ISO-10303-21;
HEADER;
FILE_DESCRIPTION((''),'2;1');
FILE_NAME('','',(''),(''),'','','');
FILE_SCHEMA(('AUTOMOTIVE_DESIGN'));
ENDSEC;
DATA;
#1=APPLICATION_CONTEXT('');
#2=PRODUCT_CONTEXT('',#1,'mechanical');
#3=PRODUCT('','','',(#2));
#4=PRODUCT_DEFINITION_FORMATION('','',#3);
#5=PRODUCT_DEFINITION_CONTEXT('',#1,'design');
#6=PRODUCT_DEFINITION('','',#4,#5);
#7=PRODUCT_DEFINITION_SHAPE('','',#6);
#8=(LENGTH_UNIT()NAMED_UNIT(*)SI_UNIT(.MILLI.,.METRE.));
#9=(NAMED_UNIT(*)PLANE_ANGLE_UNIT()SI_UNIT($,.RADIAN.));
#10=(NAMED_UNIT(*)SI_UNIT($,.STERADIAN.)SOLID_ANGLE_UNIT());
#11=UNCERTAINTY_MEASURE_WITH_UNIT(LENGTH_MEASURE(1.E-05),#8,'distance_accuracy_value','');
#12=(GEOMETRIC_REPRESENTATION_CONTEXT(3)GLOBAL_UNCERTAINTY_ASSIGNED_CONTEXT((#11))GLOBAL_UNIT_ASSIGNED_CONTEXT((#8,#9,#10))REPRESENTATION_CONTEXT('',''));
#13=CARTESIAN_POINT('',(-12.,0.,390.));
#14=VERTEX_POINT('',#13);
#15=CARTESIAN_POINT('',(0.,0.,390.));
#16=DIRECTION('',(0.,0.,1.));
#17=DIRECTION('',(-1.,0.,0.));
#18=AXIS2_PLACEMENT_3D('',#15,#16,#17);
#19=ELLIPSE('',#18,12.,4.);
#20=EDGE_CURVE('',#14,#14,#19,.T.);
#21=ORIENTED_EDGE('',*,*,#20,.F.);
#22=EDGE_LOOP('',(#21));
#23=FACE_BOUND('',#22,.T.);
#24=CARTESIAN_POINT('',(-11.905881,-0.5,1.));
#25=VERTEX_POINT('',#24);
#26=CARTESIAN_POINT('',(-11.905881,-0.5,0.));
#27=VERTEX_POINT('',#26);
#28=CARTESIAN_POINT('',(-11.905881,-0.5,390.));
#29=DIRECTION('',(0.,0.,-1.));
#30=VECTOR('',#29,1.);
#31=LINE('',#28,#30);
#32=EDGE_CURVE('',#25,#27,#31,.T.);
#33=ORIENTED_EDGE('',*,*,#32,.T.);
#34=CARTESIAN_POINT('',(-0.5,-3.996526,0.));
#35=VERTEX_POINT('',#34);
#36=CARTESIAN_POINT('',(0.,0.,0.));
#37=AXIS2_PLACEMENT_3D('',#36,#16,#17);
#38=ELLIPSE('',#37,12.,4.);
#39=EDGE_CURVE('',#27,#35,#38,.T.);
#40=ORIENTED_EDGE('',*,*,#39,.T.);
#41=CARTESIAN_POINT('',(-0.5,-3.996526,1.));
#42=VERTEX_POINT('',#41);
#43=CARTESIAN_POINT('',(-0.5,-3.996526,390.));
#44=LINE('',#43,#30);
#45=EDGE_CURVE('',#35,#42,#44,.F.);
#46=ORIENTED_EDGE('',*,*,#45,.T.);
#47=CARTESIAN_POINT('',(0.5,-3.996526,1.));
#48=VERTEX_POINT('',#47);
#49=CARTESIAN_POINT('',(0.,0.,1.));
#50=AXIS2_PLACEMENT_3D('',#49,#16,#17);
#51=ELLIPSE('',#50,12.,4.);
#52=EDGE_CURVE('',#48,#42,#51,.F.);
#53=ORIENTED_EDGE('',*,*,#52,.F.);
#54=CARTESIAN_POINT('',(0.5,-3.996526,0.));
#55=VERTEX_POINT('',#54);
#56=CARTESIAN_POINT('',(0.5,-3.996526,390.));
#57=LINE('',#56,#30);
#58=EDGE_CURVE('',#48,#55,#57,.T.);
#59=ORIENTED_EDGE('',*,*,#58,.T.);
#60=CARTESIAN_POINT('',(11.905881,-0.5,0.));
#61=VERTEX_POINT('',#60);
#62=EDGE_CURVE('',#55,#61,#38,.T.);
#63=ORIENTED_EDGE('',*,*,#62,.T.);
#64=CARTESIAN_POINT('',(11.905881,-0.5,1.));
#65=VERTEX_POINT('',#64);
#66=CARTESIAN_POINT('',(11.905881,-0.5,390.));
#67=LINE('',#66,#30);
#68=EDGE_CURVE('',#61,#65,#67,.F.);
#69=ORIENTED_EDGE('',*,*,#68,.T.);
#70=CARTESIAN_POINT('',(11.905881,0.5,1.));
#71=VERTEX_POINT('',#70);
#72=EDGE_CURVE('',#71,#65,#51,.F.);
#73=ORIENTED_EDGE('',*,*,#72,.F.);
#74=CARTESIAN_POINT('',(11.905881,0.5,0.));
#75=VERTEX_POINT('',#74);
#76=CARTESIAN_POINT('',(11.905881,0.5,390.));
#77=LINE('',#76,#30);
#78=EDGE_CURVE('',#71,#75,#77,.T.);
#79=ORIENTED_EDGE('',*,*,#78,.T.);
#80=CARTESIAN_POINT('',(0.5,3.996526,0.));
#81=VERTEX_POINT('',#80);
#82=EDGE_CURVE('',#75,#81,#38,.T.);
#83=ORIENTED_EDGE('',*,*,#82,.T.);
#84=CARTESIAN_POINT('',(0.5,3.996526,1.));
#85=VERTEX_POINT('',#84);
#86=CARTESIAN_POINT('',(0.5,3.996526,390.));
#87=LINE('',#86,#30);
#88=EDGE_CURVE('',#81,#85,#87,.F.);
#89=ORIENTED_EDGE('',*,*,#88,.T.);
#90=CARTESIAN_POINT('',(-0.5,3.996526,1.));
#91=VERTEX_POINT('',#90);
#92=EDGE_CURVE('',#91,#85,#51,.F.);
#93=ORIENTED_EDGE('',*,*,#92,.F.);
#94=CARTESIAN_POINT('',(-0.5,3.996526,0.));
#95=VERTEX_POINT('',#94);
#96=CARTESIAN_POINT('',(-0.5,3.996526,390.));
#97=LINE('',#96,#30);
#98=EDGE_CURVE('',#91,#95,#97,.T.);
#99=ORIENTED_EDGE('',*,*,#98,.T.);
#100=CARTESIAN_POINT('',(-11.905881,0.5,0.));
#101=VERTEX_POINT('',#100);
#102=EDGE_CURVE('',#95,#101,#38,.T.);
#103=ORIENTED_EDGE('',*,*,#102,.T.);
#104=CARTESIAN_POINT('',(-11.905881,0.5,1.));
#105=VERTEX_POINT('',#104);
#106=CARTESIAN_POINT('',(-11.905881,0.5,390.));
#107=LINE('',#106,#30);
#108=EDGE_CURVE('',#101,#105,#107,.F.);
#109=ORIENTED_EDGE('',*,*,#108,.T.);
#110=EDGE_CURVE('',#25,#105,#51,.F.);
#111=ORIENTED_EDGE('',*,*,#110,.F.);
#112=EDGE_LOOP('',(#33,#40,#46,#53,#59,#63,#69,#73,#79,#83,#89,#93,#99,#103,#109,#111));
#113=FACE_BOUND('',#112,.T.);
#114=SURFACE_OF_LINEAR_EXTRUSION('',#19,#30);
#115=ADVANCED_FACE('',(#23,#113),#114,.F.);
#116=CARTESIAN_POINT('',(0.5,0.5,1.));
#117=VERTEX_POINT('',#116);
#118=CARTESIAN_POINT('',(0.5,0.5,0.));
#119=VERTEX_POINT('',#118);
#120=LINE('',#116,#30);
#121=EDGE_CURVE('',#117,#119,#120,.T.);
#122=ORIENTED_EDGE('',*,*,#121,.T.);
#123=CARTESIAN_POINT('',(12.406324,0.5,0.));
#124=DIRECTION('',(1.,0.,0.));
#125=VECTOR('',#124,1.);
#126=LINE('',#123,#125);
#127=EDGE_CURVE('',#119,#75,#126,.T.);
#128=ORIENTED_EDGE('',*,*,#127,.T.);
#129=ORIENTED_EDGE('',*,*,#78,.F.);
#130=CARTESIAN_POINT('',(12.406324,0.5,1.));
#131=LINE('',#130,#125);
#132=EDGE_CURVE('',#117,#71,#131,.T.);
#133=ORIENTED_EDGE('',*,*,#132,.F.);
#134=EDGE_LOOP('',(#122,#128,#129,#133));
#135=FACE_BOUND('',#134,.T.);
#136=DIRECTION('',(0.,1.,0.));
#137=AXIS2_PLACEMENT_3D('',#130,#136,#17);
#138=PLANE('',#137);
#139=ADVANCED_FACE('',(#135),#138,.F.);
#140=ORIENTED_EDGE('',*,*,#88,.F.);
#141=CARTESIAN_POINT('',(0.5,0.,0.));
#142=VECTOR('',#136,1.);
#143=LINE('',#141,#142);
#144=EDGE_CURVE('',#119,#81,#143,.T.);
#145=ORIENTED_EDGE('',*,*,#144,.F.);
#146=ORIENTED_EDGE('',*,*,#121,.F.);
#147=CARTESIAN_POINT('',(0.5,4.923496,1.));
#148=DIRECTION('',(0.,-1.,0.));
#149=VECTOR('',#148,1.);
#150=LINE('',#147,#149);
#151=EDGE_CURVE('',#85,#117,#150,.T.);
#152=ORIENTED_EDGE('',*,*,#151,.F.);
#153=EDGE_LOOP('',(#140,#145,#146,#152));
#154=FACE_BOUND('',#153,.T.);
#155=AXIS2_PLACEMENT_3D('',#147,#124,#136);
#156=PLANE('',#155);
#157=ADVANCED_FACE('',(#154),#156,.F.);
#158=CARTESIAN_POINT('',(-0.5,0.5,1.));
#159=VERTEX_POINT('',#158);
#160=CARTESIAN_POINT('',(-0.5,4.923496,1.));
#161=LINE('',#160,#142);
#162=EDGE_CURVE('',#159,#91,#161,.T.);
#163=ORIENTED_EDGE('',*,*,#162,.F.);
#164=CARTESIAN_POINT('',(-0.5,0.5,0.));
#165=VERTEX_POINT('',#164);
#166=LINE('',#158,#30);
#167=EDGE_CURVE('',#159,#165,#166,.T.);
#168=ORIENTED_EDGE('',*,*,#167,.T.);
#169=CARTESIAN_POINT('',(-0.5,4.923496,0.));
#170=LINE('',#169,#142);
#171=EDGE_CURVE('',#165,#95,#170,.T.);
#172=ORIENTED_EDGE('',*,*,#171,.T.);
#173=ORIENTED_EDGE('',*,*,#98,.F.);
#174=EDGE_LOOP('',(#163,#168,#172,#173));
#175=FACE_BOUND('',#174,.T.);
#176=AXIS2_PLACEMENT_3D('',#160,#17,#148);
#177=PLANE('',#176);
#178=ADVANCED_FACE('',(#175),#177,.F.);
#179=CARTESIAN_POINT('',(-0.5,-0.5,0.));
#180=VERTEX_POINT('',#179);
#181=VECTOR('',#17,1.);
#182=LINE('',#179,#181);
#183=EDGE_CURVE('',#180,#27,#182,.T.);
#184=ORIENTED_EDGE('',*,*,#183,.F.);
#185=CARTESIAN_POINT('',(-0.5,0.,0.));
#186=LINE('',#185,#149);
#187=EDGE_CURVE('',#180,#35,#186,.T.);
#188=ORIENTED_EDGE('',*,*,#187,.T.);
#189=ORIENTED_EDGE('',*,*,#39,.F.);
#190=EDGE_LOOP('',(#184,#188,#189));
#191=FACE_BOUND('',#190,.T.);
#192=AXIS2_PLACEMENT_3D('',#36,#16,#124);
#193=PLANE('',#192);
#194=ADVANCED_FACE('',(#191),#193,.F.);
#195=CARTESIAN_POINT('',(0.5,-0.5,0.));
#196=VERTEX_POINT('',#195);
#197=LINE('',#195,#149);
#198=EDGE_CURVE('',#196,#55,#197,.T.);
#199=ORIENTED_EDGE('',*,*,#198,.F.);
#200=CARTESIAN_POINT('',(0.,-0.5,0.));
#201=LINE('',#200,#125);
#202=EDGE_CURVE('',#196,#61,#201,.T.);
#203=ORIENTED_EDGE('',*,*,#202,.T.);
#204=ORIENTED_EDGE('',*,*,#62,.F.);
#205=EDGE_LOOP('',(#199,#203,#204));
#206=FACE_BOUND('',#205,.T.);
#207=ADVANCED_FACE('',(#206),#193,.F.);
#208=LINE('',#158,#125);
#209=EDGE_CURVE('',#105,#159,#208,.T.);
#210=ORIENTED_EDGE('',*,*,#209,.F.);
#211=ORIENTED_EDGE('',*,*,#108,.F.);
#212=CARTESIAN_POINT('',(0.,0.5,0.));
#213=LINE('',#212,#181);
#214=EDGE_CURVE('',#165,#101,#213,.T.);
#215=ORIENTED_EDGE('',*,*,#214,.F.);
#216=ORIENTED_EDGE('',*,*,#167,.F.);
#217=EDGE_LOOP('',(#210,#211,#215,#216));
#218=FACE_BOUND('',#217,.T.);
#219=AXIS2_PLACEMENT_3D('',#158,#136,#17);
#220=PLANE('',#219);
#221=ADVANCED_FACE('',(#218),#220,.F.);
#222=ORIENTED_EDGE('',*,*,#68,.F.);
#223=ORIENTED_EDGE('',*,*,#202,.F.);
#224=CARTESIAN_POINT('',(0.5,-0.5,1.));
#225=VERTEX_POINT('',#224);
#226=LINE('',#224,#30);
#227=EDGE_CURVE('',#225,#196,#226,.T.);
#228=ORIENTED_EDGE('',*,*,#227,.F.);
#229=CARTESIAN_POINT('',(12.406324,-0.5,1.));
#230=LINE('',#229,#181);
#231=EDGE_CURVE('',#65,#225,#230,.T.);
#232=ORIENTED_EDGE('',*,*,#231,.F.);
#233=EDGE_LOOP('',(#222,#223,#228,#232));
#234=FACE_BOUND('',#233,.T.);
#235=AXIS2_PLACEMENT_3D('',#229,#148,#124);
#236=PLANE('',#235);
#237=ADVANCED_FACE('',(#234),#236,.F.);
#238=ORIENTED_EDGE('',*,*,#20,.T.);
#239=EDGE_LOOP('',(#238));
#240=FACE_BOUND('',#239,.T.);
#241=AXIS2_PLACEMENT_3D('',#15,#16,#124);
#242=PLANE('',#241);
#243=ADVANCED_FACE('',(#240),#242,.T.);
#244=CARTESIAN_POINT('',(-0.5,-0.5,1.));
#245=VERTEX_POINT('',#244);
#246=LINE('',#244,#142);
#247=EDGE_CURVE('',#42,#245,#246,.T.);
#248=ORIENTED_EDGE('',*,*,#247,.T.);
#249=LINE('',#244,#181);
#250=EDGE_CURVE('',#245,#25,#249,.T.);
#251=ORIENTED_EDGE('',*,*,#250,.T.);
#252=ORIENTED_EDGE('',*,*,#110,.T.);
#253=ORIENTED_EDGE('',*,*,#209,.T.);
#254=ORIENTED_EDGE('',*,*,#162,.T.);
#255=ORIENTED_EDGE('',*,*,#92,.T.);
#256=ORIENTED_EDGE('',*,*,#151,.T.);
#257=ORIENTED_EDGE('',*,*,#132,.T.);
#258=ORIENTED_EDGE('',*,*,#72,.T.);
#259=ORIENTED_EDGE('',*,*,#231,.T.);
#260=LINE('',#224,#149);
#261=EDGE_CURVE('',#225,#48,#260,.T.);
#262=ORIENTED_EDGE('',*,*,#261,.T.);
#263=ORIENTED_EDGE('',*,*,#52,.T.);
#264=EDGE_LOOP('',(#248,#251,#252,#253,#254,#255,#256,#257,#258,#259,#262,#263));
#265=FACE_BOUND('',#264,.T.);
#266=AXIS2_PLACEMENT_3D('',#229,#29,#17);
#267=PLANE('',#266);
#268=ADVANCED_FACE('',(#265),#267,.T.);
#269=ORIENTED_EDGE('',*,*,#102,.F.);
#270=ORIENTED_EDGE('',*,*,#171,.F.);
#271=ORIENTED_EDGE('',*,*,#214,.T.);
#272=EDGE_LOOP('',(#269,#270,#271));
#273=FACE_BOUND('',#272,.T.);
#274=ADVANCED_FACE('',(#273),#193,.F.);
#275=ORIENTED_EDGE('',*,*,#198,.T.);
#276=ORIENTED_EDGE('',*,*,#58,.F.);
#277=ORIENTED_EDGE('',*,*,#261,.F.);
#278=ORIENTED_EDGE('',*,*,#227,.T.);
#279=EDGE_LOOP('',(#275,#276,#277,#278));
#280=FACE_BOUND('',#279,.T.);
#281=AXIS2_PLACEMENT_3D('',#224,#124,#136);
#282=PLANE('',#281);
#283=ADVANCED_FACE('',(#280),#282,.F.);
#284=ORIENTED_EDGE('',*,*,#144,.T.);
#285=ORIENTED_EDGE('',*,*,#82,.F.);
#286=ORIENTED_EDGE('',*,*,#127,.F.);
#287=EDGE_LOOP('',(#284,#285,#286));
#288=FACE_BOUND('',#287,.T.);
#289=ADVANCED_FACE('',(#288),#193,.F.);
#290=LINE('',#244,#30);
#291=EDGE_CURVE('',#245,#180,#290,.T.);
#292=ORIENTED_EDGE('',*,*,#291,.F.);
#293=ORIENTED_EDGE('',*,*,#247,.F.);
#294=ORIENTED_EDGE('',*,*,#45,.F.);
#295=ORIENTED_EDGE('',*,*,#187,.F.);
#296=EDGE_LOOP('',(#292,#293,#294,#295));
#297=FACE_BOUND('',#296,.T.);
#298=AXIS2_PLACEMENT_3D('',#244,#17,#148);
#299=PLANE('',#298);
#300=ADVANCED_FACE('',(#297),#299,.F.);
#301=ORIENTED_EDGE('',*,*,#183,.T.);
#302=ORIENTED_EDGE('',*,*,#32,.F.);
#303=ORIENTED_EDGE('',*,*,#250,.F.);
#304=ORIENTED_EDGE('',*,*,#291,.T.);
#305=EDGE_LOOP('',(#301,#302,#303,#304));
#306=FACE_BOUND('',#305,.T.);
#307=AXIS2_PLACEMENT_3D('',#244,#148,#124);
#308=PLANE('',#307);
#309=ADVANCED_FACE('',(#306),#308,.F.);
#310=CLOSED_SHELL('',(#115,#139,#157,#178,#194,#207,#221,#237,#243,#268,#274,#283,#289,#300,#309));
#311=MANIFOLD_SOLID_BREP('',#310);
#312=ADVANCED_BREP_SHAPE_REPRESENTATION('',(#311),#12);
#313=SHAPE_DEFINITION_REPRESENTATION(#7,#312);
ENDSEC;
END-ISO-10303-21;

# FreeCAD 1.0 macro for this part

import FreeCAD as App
import Part
import Sketcher

V = App.Vector


def add_polygon(sketch, points):
    """Adds a closed chain of lines whose ends are joined by coincident constraints."""
    first, n = sketch.GeometryCount, len(points)
    for a, b in zip(points, points[1:] + points[:1]):
        sketch.addGeometry(Part.LineSegment(App.Vector(*a, 0), App.Vector(*b, 0)), False)
    for i in range(n):
        sketch.addConstraint(Sketcher.Constraint("Coincident", first + i, 2, first + (i + 1) % n, 1))

doc = App.newDocument("Part")
body = doc.addObject("PartDesign::Body", "Body")

# Sketch on XY plane
sketch1 = body.newObject("Sketcher::SketchObject", "Sketch")
sketch1.AttachmentSupport = (doc.getObject("XY_Plane"), [""])
sketch1.MapMode = "FlatFace"
sketch1.addGeometry(Part.Ellipse(V(-12, 0, 0), V(0, -4, 0), V(0, 0, 0)), False)
sketch1.addConstraint(Sketcher.Constraint("Block", 0))
pad1 = body.newObject("PartDesign::Pad", "Pad")
pad1.Profile = sketch1
pad1.Length = 390

# Sketch on XY plane
sketch2 = body.newObject("Sketcher::SketchObject", "Sketch001")
sketch2.AttachmentSupport = (doc.getObject("XY_Plane"), [""])
sketch2.MapMode = "FlatFace"
add_polygon(sketch2, [(-0.5, -5.052696), (-0.5, -0.5), (-12.270709, -0.5), (-12.270709, 0.5), (-0.5, 0.5), (-0.5, 4.923496), (0.5, 4.923496), (0.5, 0.5), (12.406324, 0.5), (12.406324, -0.5), (0.5, -0.5), (0.5, -5.052696)])  # lines 0-11
sketch2.addConstraint([
    Sketcher.Constraint("Vertical", 0),
    Sketcher.Constraint("Horizontal", 1),
    Sketcher.Constraint("Vertical", 2),
    Sketcher.Constraint("Horizontal", 3),
    Sketcher.Constraint("Vertical", 4),
    Sketcher.Constraint("Horizontal", 5),
    Sketcher.Constraint("Vertical", 6),
    Sketcher.Constraint("Horizontal", 7),
    Sketcher.Constraint("Vertical", 8),
    Sketcher.Constraint("Horizontal", 9),
    Sketcher.Constraint("Vertical", 10),
    Sketcher.Constraint("Horizontal", 11),
    Sketcher.Constraint("Symmetric", 0, 2, 6, 2, -1, 1),
    Sketcher.Constraint("Symmetric", 3, 2, 9, 2, -1, 1),
    Sketcher.Constraint("Symmetric", 3, 2, 6, 2, -2),
    Sketcher.Constraint("Equal", 11, 2),
    Sketcher.Constraint("DistanceX", 5, 1, 5, 2, 1.0),
    Sketcher.Constraint("DistanceX", 1, 2, 1, 1, 11.770709),
    Sketcher.Constraint("DistanceX", 7, 1, 7, 2, 11.906324),
    Sketcher.Constraint("DistanceY", 0, 1, 0, 2, 4.552696),
    Sketcher.Constraint("DistanceY", 4, 1, 4, 2, 4.423496),
])
pocket1 = body.newObject("PartDesign::Pocket", "Pocket")
pocket1.Profile = sketch2
pocket1.Length = 1
pocket1.Reversed = True

doc.recompute()
